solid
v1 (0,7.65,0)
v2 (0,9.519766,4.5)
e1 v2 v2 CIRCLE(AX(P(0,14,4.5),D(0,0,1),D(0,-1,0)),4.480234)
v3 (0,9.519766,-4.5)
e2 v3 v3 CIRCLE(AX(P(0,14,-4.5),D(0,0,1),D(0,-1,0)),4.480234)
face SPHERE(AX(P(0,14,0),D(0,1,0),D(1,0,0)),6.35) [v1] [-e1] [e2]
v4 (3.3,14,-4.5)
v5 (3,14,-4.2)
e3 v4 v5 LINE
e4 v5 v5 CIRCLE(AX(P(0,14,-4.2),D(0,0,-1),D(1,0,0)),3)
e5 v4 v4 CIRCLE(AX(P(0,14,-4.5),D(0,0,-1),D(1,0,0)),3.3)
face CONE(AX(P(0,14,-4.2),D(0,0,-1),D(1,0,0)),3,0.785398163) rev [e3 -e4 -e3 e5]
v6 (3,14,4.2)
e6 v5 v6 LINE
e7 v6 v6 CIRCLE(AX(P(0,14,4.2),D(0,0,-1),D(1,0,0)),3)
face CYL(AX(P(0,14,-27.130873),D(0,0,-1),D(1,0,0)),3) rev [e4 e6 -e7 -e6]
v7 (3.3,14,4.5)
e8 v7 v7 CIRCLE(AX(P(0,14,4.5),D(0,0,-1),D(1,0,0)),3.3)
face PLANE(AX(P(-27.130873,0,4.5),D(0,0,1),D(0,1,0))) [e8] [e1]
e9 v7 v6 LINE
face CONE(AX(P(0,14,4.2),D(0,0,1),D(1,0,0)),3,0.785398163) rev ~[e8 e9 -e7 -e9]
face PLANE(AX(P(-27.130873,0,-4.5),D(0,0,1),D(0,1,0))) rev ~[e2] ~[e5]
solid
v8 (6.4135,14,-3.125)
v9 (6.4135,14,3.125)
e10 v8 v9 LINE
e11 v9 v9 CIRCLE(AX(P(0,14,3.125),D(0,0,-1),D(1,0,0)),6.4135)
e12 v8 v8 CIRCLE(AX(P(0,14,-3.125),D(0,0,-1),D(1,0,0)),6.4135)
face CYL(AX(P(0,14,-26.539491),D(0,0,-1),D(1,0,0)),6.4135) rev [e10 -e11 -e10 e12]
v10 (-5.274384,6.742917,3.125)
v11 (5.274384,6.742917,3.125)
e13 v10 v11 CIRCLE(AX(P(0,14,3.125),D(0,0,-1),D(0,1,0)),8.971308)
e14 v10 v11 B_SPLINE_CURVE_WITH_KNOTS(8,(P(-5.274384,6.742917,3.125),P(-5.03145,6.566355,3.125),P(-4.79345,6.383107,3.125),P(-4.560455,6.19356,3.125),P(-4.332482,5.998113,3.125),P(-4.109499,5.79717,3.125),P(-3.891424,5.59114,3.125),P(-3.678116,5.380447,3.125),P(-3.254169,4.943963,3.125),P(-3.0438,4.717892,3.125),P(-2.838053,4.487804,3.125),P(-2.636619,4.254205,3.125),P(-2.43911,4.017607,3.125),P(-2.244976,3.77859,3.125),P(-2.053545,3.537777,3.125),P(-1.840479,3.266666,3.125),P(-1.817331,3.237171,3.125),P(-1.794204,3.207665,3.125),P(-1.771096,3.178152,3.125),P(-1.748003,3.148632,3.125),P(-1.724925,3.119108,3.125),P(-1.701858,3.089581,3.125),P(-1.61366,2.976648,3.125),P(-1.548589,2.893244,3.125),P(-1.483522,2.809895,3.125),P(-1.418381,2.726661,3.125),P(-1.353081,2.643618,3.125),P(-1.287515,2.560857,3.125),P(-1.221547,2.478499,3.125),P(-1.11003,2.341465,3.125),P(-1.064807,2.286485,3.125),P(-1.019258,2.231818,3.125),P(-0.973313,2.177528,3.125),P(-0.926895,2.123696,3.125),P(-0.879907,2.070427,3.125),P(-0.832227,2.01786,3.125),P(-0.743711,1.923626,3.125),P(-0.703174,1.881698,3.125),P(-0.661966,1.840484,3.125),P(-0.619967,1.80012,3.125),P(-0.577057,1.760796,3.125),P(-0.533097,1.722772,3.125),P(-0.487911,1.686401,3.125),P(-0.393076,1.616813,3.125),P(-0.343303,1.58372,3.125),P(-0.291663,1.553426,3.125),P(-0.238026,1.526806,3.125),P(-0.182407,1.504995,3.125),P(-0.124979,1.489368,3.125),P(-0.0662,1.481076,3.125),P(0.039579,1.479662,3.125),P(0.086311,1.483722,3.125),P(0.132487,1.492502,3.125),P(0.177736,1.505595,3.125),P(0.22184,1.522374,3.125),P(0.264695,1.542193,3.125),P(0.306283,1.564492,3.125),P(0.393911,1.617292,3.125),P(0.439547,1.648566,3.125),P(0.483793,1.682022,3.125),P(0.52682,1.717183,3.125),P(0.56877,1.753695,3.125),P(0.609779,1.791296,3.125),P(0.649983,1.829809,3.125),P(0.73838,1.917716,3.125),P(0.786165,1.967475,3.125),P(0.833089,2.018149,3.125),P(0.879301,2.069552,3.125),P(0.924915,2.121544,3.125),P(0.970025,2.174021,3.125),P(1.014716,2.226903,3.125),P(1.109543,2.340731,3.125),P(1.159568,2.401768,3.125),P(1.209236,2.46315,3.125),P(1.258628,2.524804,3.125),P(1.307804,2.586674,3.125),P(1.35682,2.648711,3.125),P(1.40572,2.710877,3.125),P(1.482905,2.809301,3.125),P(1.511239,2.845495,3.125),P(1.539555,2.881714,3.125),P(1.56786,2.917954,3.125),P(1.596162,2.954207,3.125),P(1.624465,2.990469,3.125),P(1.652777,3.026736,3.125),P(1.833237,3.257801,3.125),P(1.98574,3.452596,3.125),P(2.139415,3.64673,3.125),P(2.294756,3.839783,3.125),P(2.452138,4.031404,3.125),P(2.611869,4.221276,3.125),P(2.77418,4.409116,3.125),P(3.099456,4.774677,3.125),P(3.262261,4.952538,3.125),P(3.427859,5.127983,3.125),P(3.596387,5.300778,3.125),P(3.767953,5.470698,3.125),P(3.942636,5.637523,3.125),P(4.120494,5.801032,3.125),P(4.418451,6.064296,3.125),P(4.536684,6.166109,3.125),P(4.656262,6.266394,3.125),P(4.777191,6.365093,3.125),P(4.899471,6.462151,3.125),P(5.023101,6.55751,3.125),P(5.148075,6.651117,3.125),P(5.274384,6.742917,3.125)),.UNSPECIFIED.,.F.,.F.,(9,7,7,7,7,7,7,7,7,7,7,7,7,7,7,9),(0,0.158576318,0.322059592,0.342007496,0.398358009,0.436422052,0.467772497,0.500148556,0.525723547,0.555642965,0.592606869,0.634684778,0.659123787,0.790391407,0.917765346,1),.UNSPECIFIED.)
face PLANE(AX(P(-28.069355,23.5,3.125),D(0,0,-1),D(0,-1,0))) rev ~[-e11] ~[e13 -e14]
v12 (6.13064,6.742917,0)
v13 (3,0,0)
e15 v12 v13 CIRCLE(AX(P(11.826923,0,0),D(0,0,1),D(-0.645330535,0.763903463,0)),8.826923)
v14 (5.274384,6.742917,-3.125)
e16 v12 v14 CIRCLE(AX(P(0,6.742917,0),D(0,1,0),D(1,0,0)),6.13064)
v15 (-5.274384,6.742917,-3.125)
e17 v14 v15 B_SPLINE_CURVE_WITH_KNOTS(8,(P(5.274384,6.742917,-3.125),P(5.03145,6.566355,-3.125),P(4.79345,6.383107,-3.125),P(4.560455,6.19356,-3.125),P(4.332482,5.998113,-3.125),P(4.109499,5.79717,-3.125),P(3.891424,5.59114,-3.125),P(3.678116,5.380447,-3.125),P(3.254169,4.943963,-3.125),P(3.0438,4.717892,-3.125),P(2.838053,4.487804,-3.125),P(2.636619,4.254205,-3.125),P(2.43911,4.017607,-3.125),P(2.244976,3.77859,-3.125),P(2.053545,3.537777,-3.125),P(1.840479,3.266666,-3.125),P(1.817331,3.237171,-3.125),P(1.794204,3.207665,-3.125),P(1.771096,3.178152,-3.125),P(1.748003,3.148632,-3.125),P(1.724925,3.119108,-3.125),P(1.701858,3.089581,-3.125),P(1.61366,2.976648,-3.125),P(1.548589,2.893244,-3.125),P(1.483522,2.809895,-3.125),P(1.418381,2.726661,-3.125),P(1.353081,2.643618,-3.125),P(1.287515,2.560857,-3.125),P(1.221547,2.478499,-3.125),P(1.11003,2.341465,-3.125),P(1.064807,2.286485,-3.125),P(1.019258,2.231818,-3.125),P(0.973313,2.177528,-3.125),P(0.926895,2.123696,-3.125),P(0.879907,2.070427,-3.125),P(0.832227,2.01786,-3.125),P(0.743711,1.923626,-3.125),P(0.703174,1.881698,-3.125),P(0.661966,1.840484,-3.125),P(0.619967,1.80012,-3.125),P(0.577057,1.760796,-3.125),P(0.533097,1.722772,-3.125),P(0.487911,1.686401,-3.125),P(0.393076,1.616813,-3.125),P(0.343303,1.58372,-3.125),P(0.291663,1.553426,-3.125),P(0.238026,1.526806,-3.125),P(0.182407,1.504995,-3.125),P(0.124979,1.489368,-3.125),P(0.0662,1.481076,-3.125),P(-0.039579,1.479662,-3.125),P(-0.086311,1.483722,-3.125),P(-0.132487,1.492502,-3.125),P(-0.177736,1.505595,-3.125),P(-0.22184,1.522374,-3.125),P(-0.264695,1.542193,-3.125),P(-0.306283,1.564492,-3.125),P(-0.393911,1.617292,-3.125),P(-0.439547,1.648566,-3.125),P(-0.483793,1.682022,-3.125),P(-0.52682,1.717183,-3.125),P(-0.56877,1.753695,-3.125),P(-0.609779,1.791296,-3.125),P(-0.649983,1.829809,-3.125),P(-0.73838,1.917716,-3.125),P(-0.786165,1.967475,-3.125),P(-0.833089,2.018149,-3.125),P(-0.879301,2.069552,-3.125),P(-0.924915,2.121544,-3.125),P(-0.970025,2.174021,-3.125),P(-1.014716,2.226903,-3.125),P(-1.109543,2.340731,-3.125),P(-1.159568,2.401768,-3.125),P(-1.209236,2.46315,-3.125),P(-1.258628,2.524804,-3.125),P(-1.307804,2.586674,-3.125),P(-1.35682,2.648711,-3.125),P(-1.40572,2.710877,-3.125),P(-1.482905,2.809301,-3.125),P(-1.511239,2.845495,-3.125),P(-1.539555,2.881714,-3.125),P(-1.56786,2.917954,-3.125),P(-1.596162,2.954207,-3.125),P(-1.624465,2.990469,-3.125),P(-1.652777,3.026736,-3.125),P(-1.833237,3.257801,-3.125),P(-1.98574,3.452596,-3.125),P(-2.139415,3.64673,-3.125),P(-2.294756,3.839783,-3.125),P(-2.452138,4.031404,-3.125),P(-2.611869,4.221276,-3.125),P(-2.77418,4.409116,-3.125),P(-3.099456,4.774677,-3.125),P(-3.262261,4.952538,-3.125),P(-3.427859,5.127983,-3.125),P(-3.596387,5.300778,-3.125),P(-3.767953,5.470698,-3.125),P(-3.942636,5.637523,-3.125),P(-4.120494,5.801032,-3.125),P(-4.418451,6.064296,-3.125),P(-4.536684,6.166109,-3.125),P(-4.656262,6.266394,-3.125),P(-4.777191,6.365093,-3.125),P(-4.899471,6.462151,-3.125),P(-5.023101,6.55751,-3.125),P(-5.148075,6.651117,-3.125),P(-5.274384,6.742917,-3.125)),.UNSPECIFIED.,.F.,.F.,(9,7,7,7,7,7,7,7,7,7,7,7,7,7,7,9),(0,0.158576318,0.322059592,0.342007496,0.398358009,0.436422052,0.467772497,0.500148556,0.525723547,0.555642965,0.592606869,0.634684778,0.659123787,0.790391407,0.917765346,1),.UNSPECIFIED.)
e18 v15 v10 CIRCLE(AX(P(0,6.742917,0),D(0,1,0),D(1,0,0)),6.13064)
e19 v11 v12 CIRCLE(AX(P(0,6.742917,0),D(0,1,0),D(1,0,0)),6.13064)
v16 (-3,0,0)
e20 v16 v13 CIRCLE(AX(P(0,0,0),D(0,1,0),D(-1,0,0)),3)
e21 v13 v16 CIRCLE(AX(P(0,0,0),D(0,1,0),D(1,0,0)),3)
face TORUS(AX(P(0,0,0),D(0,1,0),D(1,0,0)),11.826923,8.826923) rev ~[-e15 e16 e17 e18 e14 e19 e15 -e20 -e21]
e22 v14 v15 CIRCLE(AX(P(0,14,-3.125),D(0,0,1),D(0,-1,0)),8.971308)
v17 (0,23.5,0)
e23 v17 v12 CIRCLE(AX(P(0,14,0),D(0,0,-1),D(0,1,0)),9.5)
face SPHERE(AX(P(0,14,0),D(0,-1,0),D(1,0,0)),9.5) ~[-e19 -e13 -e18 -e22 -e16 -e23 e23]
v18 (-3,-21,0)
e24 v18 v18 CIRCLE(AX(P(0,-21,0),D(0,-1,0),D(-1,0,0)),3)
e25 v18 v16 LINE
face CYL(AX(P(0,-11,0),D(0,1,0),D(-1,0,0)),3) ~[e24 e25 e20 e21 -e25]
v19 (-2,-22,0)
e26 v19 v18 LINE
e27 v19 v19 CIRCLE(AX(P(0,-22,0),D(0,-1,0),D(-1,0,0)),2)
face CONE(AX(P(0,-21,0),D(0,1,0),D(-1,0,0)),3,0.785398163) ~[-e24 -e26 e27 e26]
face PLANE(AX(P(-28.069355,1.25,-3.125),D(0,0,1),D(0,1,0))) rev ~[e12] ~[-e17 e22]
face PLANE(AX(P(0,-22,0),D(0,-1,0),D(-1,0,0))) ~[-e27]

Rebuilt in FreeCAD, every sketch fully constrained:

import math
import FreeCAD as App
import Part
import Sketcher

V = App.Vector
Q = App.Units.Quantity


def edges_at(feature, points):
    """Names of the edges that pass closest to the given points."""
    edges = feature.Shape.Edges
    near = lambda p: min(range(len(edges)), key=lambda i: edges[i].distToShape(Part.Vertex(*p))[0])
    return sorted({f"Edge{near(p) + 1}" for p in points})


def add_polygon(sketch, points):
    """Adds a closed chain of lines whose ends are joined by coincident constraints."""
    first, n = sketch.GeometryCount, len(points)
    for a, b in zip(points, points[1:] + points[:1]):
        sketch.addGeometry(Part.LineSegment(App.Vector(*a, 0), App.Vector(*b, 0)), False)
    for i in range(n):
        sketch.addConstraint(Sketcher.Constraint("Coincident", first + i, 2, first + (i + 1) % n, 1))

doc = App.newDocument("Part")
params = doc.addObject("Spreadsheet::Sheet", "Params")
for row, (alias, value) in enumerate([
    ("sketch1_width", "3 mm"),
    ("sketch1_height", "22 mm"),
    ("revolution_angle", "360 deg"),
    ("chamfer_size", "1 mm"),
    ("sketch2_radius", "9.5 mm"),
    ("sketch2_width", "3 mm"),
    ("sketch2_height", "23.5 mm"),
    ("revolution2_angle", "360 deg"),
    ("sketch3_width", "23.5 mm"),
    ("sketch3_height", "6.5 mm"),
    ("sketch3_width2", "22.25 mm"),
    ("sketch5_radius", "6.35 mm"),
    ("revolution3_angle", "360 deg"),
    ("sketch6_height", "5 mm"),
    ("sketch6_width", "23.5 mm"),
    ("sketch7_diameter", "6 mm"),
    ("chamfer2_size", "0.3 mm"),
], start=1):
    params.set(f"A{row}", alias)
    params.set(f"B{row}", "=" + value)
    params.setAlias(f"B{row}", alias)

body = doc.addObject("PartDesign::Body", "Body")

# Sketch on XY plane
sketch1 = body.newObject("Sketcher::SketchObject", "Sketch")
sketch1.AttachmentSupport = (doc.getObject("XY_Plane"), [""])
sketch1.MapMode = "FlatFace"
add_polygon(sketch1, [(0, 0), (0, -22), (3, -22), (3, 0)])  # lines 0-3
sketch1.addConstraint([
    Sketcher.Constraint("Vertical", 0),
    Sketcher.Constraint("Horizontal", 1),
    Sketcher.Constraint("Vertical", 2),
    Sketcher.Constraint("Horizontal", 3),
    Sketcher.Constraint("Coincident", 3, 2, -1, 1),
    Sketcher.Constraint("DistanceX", 1, 1, 1, 2, Q("3 mm")),
    Sketcher.Constraint("DistanceY", 0, 2, 0, 1, Q("22 mm")),
])
sketch1.setExpression("Constraints[9]", "Params.sketch1_width")
sketch1.setExpression("Constraints[10]", "Params.sketch1_height")
revolution = body.newObject("PartDesign::Revolution", "Revolution")
revolution.Profile = sketch1
revolution.ReferenceAxis = (sketch1, ["V_Axis"])
revolution.setExpression("Angle", "Params.revolution_angle")
doc.recompute()

chamfer = body.newObject("PartDesign::Chamfer", "Chamfer")
chamfer.Base = (revolution, edges_at(revolution, [(3, -22, 0)]))
chamfer.setExpression("Size", "Params.chamfer_size")

# Sketch on XY plane
sketch2 = body.newObject("Sketcher::SketchObject", "Sketch001")
sketch2.AttachmentSupport = (doc.getObject("XY_Plane"), [""])
sketch2.MapMode = "FlatFace"
sketch2.addGeometry([
    Part.LineSegment(V(0, 0, 0), V(3, 0, 0)),
    Part.ArcOfCircle(Part.Circle(V(11.826923, 0, 0), V(0, 0, 1), 8.826923), math.radians(130.190462), math.radians(180)),
    Part.ArcOfCircle(Part.Circle(V(0, 14, 0), V(0, 0, 1), 9.5), math.radians(-49.809538), math.radians(90)),
    Part.LineSegment(V(0, 23.5, 0), V(0, 0, 0)),
], False)
sketch2.addConstraint([
    Sketcher.Constraint("Coincident", 0, 2, 1, 2),
    Sketcher.Constraint("Tangent", 1, 1, 2, 1),
    Sketcher.Constraint("Coincident", 2, 2, 3, 1),
    Sketcher.Constraint("Coincident", 3, 2, 0, 1),
    Sketcher.Constraint("Horizontal", 0),
    Sketcher.Constraint("Vertical", 3),
    Sketcher.Constraint("Coincident", 3, 2, -1, 1),
    Sketcher.Constraint("PointOnObject", 1, 3, -1),
    Sketcher.Constraint("PointOnObject", 2, 3, -2),
    Sketcher.Constraint("Radius", 2, Q("9.5 mm")),
    Sketcher.Constraint("DistanceX", 0, 1, 0, 2, Q("3 mm")),
    Sketcher.Constraint("DistanceY", 3, 2, 3, 1, Q("23.5 mm")),
])
sketch2.setExpression("Constraints[9]", "Params.sketch2_radius")
sketch2.setExpression("Constraints[10]", "Params.sketch2_width")
sketch2.setExpression("Constraints[11]", "Params.sketch2_height")
revolution2 = body.newObject("PartDesign::Revolution", "Revolution001")
revolution2.Profile = sketch2
revolution2.ReferenceAxis = (sketch2, ["V_Axis"])
revolution2.setExpression("Angle", "Params.revolution2_angle")

# Sketch on YZ plane
sketch3 = body.newObject("Sketcher::SketchObject", "Sketch002")
sketch3.AttachmentSupport = (doc.getObject("YZ_Plane"), [""])
sketch3.MapMode = "FlatFace"
add_polygon(sketch3, [(23.5, -9.5), (23.5, -3.125), (1.25, -3.125), (0, -3), (0, -9.5)])  # lines 0-4
add_polygon(sketch3, [(1.25, 3.125), (23.5, 3.125), (23.5, 9.5), (0, 9.5), (0, 3)])  # lines 5-9
sketch3.addConstraint([
    Sketcher.Constraint("Vertical", 0),
    Sketcher.Constraint("Horizontal", 1),
    Sketcher.Constraint("Vertical", 3),
    Sketcher.Constraint("Horizontal", 4),
    Sketcher.Constraint("Horizontal", 5),
    Sketcher.Constraint("Vertical", 6),
    Sketcher.Constraint("Horizontal", 7),
    Sketcher.Constraint("Vertical", 8),
    Sketcher.Constraint("Symmetric", 3, 2, 7, 2, -1, 1),
    Sketcher.Constraint("Symmetric", 0, 2, 5, 2, -1),
    Sketcher.Constraint("Symmetric", 2, 2, 8, 2, -1),
    Sketcher.Constraint("Vertical", 1, 2, 9, 2),
    Sketcher.Constraint("DistanceX", 4, 1, 4, 2, Q("23.5 mm")),
    Sketcher.Constraint("DistanceY", 3, 2, 3, 1, Q("6.5 mm")),
    Sketcher.Constraint("DistanceY", 2, 2, -1, 1, Q("3 mm")),
    Sketcher.Constraint("DistanceX", 1, 2, 1, 1, Q("22.25 mm")),
    Sketcher.Constraint("DistanceY", 0, 1, 0, 2, Q("6.375 mm")),
])
sketch3.setExpression("Constraints[22]", "Params.sketch3_width")
sketch3.setExpression("Constraints[23]", "Params.sketch3_height")
sketch3.setExpression("Constraints[25]", "Params.sketch3_width2")
pocket1 = body.newObject("PartDesign::Pocket", "Pocket")
pocket1.Profile = sketch3
pocket1.Type = "ThroughAll"
pocket1.Midplane = True

# Sketch on XY plane
sketch4 = body.newObject("Sketcher::SketchObject", "Sketch003")
sketch4.AttachmentSupport = (doc.getObject("XY_Plane"), [""])
sketch4.MapMode = "FlatFace"
sketch4.addGeometry(Part.Circle(V(0, 14, 0), V(0, 0, 1), 6.4135), False)
sketch4.addConstraint([
    Sketcher.Constraint("PointOnObject", 0, 3, -2),
    Sketcher.Constraint("Diameter", 0, Q("12.827 mm")),
    Sketcher.Constraint("DistanceY", -1, 1, 0, 3, Q("14 mm")),
])
pocket2 = body.newObject("PartDesign::Pocket", "Pocket001")
pocket2.Profile = sketch4
pocket2.Type = "ThroughAll"
pocket2.Midplane = True
body2 = doc.addObject("PartDesign::Body", "Body001")

# Sketch on XY plane
sketch5 = body2.newObject("Sketcher::SketchObject", "Sketch004")
sketch5.AttachmentSupport = (doc.getObject("XY_Plane001"), [""])
sketch5.MapMode = "FlatFace"
sketch5.addGeometry([
    Part.LineSegment(V(0, 20.35, 0), V(0, 7.65, 0)),
    Part.ArcOfCircle(Part.Circle(V(0, 14, 0), V(0, 0, 1), 6.35), math.radians(-90), math.radians(90)),
], False)
sketch5.addConstraint([
    Sketcher.Constraint("Coincident", 0, 1, 1, 2),
    Sketcher.Constraint("Coincident", 1, 1, 0, 2),
    Sketcher.Constraint("Vertical", 0),
    Sketcher.Constraint("PointOnObject", 1, 3, -2),
    Sketcher.Constraint("PointOnObject", 0, 1, -2),
    Sketcher.Constraint("Radius", 1, Q("6.35 mm")),
    Sketcher.Constraint("DistanceY", -1, 1, 1, 3, Q("14 mm")),
])
sketch5.setExpression("Constraints[5]", "Params.sketch5_radius")
revolution3 = body2.newObject("PartDesign::Revolution", "Revolution002")
revolution3.Profile = sketch5
revolution3.ReferenceAxis = (sketch5, ["V_Axis"])
revolution3.setExpression("Angle", "Params.revolution3_angle")

# Sketch on YZ plane
sketch6 = body2.newObject("Sketcher::SketchObject", "Sketch005")
sketch6.AttachmentSupport = (doc.getObject("YZ_Plane001"), [""])
sketch6.MapMode = "FlatFace"
add_polygon(sketch6, [(23.5, 9.5), (0, 9.5), (0, 4.5), (23.5, 4.5)])  # lines 0-3
add_polygon(sketch6, [(23.5, -4.5), (0, -4.5), (0, -9.5), (23.5, -9.5)])  # lines 4-7
sketch6.addConstraint([
    Sketcher.Constraint("Horizontal", 0),
    Sketcher.Constraint("Vertical", 1),
    Sketcher.Constraint("Horizontal", 2),
    Sketcher.Constraint("Vertical", 3),
    Sketcher.Constraint("Horizontal", 4),
    Sketcher.Constraint("Vertical", 5),
    Sketcher.Constraint("Horizontal", 6),
    Sketcher.Constraint("Vertical", 7),
    Sketcher.Constraint("Symmetric", 1, 2, 4, 2, -1, 1),
    Sketcher.Constraint("Symmetric", 0, 2, 5, 2, -1),
    Sketcher.Constraint("Vertical", 3, 2, 6, 2),
    Sketcher.Constraint("DistanceY", 1, 2, 1, 1, Q("5 mm")),
    Sketcher.Constraint("DistanceX", 0, 2, 0, 1, Q("23.5 mm")),
    Sketcher.Constraint("DistanceY", 4, 2, 1, 2, Q("9 mm")),
])
sketch6.setExpression("Constraints[19]", "Params.sketch6_height")
sketch6.setExpression("Constraints[20]", "Params.sketch6_width")
pocket3 = body2.newObject("PartDesign::Pocket", "Pocket002")
pocket3.Profile = sketch6
pocket3.Type = "ThroughAll"
pocket3.Midplane = True

# Sketch on XY plane
sketch7 = body2.newObject("Sketcher::SketchObject", "Sketch006")
sketch7.AttachmentSupport = (doc.getObject("XY_Plane001"), [""])
sketch7.MapMode = "FlatFace"
sketch7.addGeometry(Part.Circle(V(0, 14, 0), V(0, 0, 1), 3), False)
sketch7.addConstraint([
    Sketcher.Constraint("PointOnObject", 0, 3, -2),
    Sketcher.Constraint("Diameter", 0, Q("6 mm")),
    Sketcher.Constraint("DistanceY", -1, 1, 0, 3, Q("14 mm")),
])
sketch7.setExpression("Constraints[1]", "Params.sketch7_diameter")
pocket4 = body2.newObject("PartDesign::Pocket", "Pocket003")
pocket4.Profile = sketch7
pocket4.Type = "ThroughAll"
pocket4.Midplane = True
doc.recompute()

chamfer2 = body2.newObject("PartDesign::Chamfer", "Chamfer001")
chamfer2.Base = (pocket4, edges_at(pocket4, [(-3, 14, -4.5), (-3, 14, 4.5)]))
chamfer2.setExpression("Size", "Params.chamfer2_size")

doc.recompute()
